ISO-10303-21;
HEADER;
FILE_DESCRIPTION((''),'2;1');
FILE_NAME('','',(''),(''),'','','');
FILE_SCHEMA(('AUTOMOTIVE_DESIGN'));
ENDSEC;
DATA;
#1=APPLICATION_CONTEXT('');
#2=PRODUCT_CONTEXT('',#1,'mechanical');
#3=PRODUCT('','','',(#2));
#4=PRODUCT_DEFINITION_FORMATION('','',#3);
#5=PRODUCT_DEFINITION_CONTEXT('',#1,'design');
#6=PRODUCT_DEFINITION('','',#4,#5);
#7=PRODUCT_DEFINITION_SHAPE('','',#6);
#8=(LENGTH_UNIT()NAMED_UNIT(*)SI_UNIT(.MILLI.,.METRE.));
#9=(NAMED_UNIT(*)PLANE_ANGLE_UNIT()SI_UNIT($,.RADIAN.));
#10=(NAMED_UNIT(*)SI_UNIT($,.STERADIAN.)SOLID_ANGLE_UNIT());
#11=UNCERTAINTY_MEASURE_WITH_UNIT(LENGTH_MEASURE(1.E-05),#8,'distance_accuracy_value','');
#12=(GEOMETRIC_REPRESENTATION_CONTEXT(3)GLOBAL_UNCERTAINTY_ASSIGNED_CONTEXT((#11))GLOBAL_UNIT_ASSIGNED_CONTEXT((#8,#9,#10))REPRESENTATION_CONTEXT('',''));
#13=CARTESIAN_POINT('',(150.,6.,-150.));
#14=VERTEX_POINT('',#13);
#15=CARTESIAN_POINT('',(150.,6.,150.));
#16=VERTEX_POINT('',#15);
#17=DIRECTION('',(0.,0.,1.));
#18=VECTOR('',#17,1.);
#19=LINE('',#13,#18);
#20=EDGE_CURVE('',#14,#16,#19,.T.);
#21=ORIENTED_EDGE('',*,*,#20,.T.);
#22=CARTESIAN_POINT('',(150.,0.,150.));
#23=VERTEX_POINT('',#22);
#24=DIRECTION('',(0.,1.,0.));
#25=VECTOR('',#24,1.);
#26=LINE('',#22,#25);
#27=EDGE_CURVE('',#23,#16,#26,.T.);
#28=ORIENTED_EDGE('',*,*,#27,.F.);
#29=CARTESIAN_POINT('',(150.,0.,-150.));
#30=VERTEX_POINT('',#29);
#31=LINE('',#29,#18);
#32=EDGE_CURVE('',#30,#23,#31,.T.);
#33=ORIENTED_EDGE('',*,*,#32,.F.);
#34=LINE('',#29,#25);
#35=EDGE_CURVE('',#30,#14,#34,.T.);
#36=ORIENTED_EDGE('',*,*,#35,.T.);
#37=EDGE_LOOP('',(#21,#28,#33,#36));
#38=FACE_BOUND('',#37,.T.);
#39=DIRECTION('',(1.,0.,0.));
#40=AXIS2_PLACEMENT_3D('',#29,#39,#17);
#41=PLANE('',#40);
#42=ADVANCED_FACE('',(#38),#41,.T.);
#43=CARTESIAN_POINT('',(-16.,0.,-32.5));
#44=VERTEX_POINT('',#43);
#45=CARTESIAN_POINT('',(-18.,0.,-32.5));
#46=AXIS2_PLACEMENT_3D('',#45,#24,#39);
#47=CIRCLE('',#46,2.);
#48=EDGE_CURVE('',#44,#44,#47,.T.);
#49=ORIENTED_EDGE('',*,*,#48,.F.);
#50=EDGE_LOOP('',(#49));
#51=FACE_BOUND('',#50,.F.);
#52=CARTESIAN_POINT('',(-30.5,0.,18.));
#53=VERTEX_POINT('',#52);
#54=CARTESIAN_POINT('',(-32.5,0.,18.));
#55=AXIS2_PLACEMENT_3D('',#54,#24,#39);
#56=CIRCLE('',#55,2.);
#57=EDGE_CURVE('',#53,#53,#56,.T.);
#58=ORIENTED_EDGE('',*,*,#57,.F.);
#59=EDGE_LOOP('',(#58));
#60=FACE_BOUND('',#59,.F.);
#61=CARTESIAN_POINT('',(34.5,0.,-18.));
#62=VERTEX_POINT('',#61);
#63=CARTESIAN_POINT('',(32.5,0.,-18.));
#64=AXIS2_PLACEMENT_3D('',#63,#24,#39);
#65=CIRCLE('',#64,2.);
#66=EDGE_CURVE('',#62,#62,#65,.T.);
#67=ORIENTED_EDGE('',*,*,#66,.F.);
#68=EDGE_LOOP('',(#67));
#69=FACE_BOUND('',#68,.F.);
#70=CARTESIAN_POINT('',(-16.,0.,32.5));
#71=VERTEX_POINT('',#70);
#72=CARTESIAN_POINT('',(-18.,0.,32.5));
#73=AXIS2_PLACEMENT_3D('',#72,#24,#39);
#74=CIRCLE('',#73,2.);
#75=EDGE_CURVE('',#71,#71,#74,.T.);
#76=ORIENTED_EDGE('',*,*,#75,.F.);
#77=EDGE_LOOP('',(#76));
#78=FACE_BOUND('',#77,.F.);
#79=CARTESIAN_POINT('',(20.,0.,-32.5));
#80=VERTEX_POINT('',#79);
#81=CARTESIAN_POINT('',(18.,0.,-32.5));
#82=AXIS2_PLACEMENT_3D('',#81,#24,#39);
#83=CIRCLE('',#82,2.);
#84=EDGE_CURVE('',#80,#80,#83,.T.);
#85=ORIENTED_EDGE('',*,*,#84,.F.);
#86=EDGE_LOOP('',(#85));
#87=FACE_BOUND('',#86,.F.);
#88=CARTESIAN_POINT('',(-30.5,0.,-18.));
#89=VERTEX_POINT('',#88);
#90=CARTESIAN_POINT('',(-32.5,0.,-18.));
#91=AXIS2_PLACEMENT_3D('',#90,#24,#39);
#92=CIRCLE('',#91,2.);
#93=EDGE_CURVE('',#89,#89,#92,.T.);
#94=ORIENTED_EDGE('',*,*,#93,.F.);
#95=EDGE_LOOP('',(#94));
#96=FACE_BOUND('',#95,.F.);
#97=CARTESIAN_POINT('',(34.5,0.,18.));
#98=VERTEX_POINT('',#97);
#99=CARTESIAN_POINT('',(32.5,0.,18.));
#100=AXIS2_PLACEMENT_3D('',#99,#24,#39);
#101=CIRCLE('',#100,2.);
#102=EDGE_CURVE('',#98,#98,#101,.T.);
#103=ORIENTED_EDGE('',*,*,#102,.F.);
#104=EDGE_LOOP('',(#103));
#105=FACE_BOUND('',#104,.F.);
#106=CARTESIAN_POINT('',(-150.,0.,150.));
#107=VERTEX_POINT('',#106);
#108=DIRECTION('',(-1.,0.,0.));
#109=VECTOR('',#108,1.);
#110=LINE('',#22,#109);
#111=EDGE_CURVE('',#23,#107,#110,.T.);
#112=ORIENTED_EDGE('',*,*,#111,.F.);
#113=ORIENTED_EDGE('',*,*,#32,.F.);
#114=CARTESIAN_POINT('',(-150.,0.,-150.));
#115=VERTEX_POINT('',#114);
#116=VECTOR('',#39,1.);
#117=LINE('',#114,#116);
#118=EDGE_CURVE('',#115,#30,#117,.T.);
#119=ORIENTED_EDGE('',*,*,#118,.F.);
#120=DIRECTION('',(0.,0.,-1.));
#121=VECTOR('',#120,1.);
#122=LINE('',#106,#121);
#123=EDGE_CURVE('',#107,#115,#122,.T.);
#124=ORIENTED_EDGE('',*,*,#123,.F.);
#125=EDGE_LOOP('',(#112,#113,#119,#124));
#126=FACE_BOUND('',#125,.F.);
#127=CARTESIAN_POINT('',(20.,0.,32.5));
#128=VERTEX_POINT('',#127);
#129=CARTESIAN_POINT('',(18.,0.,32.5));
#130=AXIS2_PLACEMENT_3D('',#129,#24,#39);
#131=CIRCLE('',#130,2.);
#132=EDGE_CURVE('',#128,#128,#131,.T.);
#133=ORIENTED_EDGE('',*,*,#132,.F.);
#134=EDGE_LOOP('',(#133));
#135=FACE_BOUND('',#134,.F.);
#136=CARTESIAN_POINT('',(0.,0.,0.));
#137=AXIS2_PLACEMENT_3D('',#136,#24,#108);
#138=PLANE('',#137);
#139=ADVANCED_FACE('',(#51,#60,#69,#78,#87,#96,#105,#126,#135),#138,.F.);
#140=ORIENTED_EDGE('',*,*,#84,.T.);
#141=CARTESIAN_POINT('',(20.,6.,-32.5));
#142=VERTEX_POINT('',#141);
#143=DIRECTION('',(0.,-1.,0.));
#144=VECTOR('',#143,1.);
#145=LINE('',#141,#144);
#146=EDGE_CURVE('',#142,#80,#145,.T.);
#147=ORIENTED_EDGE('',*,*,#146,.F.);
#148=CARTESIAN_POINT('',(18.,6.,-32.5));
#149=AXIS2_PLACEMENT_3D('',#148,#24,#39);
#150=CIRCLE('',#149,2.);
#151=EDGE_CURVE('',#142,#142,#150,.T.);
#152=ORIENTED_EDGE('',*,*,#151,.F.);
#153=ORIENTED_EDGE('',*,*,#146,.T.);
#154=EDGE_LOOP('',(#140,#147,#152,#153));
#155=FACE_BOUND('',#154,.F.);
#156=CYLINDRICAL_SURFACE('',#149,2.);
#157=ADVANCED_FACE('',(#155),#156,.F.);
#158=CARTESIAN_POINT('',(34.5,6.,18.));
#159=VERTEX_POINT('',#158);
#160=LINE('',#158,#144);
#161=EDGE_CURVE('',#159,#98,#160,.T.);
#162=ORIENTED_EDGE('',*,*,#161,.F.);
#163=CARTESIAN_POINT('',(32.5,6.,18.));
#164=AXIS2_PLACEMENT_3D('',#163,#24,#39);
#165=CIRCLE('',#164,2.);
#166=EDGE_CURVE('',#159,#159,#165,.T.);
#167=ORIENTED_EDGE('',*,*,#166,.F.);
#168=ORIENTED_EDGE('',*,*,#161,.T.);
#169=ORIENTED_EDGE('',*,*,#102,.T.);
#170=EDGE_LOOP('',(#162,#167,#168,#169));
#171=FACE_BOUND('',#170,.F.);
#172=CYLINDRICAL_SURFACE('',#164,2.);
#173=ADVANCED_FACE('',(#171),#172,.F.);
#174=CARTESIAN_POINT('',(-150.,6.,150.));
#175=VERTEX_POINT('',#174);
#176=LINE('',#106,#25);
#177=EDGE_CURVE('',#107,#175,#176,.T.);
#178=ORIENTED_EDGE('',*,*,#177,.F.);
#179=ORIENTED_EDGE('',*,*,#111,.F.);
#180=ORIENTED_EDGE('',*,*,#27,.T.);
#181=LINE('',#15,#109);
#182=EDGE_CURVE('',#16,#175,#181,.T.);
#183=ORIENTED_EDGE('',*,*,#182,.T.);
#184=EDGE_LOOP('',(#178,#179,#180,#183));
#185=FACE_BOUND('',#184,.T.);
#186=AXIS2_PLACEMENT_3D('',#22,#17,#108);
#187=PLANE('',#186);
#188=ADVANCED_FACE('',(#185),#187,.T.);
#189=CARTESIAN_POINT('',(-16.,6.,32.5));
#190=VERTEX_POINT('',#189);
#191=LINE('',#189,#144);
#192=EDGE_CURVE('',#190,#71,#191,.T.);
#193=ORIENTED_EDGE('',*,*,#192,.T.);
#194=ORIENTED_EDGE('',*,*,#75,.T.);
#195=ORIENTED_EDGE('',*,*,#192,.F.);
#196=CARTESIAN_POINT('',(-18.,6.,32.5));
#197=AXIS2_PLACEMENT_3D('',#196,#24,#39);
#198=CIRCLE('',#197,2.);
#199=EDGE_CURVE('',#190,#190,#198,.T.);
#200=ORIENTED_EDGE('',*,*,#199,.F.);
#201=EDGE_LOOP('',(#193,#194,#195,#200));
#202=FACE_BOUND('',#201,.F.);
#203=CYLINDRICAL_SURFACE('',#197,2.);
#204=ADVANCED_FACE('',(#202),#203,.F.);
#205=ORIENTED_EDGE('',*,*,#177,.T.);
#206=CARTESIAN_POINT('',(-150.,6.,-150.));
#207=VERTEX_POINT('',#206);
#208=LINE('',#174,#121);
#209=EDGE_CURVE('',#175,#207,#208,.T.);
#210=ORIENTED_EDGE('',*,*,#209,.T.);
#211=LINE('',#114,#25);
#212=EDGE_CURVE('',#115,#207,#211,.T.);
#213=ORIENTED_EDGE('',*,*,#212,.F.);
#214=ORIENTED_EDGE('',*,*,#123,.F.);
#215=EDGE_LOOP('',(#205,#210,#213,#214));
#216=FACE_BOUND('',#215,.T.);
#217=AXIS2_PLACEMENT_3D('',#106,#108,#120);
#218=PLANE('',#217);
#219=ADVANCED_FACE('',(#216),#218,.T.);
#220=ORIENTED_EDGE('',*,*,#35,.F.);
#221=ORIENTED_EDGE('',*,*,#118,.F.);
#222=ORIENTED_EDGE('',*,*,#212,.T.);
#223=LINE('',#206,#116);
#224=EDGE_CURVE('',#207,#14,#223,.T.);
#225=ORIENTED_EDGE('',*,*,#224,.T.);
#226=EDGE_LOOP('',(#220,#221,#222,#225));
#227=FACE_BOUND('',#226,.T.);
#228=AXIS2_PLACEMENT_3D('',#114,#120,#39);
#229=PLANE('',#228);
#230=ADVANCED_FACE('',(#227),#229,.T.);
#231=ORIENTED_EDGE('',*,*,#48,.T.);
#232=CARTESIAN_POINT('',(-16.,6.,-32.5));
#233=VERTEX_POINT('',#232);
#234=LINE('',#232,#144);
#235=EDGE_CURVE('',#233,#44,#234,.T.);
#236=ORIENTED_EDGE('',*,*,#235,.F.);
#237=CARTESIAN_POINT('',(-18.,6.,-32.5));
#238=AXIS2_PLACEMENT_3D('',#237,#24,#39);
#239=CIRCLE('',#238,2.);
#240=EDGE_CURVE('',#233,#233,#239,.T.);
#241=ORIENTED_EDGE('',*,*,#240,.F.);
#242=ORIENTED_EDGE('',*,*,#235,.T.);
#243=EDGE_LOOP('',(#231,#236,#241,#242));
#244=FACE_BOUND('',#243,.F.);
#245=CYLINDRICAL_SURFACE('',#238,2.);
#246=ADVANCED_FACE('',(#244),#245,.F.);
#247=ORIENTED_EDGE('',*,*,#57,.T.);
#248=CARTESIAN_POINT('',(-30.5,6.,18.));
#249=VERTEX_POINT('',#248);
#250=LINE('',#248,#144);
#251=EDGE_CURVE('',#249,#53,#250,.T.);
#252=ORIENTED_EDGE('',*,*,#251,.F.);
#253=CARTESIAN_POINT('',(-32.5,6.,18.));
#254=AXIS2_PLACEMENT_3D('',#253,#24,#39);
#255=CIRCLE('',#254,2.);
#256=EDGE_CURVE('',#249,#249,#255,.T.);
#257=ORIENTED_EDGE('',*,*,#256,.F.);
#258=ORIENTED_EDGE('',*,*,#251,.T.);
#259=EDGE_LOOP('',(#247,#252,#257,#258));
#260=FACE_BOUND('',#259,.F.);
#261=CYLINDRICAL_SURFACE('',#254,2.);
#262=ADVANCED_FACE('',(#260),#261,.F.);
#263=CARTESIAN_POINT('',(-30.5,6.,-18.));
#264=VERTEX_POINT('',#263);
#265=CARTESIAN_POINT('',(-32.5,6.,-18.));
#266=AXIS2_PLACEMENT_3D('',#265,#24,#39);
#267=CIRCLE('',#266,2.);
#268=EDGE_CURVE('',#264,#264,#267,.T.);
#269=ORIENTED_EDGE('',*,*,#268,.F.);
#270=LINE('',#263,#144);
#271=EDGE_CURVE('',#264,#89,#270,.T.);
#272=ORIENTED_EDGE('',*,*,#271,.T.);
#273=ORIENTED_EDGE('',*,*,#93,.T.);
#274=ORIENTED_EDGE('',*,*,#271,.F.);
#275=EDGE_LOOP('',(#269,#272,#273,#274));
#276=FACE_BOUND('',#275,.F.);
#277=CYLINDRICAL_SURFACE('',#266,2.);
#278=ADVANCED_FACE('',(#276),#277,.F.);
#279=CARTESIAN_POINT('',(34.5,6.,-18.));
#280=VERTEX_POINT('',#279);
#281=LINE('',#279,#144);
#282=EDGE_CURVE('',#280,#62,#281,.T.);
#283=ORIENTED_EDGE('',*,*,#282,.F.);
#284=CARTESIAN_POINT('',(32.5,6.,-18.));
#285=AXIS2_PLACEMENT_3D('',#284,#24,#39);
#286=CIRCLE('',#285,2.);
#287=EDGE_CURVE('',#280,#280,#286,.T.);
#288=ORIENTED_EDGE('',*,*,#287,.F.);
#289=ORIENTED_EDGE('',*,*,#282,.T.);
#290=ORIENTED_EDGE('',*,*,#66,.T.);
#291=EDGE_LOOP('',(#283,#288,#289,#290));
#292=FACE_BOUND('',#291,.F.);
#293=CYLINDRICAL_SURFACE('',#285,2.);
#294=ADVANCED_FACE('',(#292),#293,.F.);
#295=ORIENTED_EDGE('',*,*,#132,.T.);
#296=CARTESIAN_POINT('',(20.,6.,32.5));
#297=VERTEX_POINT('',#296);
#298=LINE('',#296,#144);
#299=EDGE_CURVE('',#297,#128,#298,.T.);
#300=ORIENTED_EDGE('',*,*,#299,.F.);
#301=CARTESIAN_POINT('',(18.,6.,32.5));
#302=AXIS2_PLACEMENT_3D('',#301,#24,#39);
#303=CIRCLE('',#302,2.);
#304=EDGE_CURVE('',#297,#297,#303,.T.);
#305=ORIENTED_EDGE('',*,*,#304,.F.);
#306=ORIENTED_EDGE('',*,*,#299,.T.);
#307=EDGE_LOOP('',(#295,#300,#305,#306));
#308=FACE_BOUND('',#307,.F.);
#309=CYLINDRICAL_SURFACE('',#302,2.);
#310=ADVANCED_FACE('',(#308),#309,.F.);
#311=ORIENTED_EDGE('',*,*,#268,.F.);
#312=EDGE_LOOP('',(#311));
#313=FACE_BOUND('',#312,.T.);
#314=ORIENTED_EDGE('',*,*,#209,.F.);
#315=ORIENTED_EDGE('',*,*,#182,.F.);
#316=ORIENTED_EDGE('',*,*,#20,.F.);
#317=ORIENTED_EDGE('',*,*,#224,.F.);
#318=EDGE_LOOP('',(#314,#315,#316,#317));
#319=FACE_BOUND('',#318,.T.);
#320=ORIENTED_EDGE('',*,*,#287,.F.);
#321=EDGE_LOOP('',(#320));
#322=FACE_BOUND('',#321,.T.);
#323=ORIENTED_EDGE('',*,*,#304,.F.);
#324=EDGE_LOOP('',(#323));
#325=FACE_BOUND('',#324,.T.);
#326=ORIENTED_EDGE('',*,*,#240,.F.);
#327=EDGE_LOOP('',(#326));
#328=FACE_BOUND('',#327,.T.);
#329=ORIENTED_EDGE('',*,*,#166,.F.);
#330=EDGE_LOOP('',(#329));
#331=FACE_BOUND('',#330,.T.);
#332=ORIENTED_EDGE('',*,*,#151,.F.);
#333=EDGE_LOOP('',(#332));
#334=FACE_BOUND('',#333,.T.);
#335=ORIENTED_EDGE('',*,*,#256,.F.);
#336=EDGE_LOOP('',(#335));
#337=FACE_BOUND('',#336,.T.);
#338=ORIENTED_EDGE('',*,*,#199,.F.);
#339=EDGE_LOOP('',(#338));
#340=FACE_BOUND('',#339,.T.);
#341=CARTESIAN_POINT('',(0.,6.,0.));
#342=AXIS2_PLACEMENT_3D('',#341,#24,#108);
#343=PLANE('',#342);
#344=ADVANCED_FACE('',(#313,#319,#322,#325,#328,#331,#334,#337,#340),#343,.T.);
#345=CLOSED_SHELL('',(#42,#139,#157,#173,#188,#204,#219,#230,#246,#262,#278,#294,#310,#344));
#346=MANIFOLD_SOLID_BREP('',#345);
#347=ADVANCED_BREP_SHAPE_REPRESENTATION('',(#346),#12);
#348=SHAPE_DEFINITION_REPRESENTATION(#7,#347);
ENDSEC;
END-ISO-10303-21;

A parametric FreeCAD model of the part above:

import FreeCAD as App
import Part
import Sketcher
from FreeCAD import Vector
Q = App.Units.Quantity


def add_polygon(sketch, points):
    """Adds a closed chain of lines whose ends are joined by coincident constraints."""
    first, n = sketch.GeometryCount, len(points)
    for a, b in zip(points, points[1:] + points[:1]):
        sketch.addGeometry(Part.LineSegment(App.Vector(*a, 0), App.Vector(*b, 0)), False)
    for i in range(n):
        sketch.addConstraint(Sketcher.Constraint("Coincident", first + i, 2, first + (i + 1) % n, 1))

doc = App.newDocument("Part")
body = doc.addObject("PartDesign::Body", "Body")

sketch1 = doc.addObject("Sketcher::SketchObject", "Sketch")
body.addObject(sketch1)
sketch1.AttachmentSupport = (doc.XZ_Plane, [""])
sketch1.MapMode = "FlatFace"
add_polygon(sketch1, [(-150, 150), (150, 150), (150, -150), (-150, -150)])
sketch1.addConstraint(Sketcher.Constraint("Horizontal", 0))
sketch1.addConstraint(Sketcher.Constraint("Vertical", 1))
sketch1.addConstraint(Sketcher.Constraint("Horizontal", 2))
sketch1.addConstraint(Sketcher.Constraint("Vertical", 3))
sketch1.addConstraint(Sketcher.Constraint("Symmetric", 0, 2, 2, 2, -1, 1))
sketch1.addConstraint(Sketcher.Constraint("Equal", 2, 1))
sketch1.addConstraint(Sketcher.Constraint("DistanceX", 0, 1, 0, 2, Q("300 mm")))
pad1 = doc.addObject("PartDesign::Pad", "Pad")
body.addObject(pad1)
pad1.Profile = sketch1
pad1.Length = 6
pad1.Reversed = True

sketch2 = doc.addObject("Sketcher::SketchObject", "Sketch001")
body.addObject(sketch2)
sketch2.AttachmentSupport = (doc.XZ_Plane, [""])
sketch2.MapMode = "FlatFace"
sketch2.AttachmentOffset = App.Placement(Vector(0, 0, -6), App.Rotation())
sketch2.addGeometry(Part.Circle(Vector(-32.5, 18, 0), Vector(0, 0, 1), 2), False)
sketch2.addGeometry(Part.Circle(Vector(-18, 32.5, 0), Vector(0, 0, 1), 2), False)
sketch2.addGeometry(Part.Circle(Vector(-18, -32.5, 0), Vector(0, 0, 1), 2), False)
sketch2.addGeometry(Part.Circle(Vector(-32.5, -18, 0), Vector(0, 0, 1), 2), False)
sketch2.addGeometry(Part.Circle(Vector(18, 32.5, 0), Vector(0, 0, 1), 2), False)
sketch2.addGeometry(Part.Circle(Vector(32.5, 18, 0), Vector(0, 0, 1), 2), False)
sketch2.addGeometry(Part.Circle(Vector(18, -32.5, 0), Vector(0, 0, 1), 2), False)
sketch2.addGeometry(Part.Circle(Vector(32.5, -18, 0), Vector(0, 0, 1), 2), False)
sketch2.addConstraint(Sketcher.Constraint("Equal", 0, 1))
sketch2.addConstraint(Sketcher.Constraint("Equal", 1, 2))
sketch2.addConstraint(Sketcher.Constraint("Equal", 2, 3))
sketch2.addConstraint(Sketcher.Constraint("Equal", 3, 4))
sketch2.addConstraint(Sketcher.Constraint("Equal", 4, 5))
sketch2.addConstraint(Sketcher.Constraint("Equal", 5, 6))
sketch2.addConstraint(Sketcher.Constraint("Equal", 6, 7))
sketch2.addConstraint(Sketcher.Constraint("Symmetric", 2, 3, 4, 3, -1, 1))
sketch2.addConstraint(Sketcher.Constraint("Symmetric", 3, 3, 5, 3, -1, 1))
sketch2.addConstraint(Sketcher.Constraint("Symmetric", 1, 3, 6, 3, -1, 1))
sketch2.addConstraint(Sketcher.Constraint("Symmetric", 0, 3, 7, 3, -1, 1))
sketch2.addConstraint(Sketcher.Constraint("Symmetric", 1, 3, 4, 3, -2))
sketch2.addConstraint(Sketcher.Constraint("Symmetric", 0, 3, 5, 3, -2))
sketch2.addConstraint(Sketcher.Constraint("Diameter", 0, Q("4 mm")))
sketch2.addConstraint(Sketcher.Constraint("DistanceY", -1, 1, 0, 3, Q("18 mm")))
sketch2.addConstraint(Sketcher.Constraint("DistanceX", 1, 3, -1, 1, Q("18 mm")))
sketch2.addConstraint(Sketcher.Constraint("DistanceY", 2, 3, 1, 3, Q("65 mm")))
sketch2.addConstraint(Sketcher.Constraint("DistanceX", 0, 3, 5, 3, Q("65 mm")))
pocket1 = doc.addObject("PartDesign::Pocket", "Pocket")
body.addObject(pocket1)
pocket1.Profile = sketch2
pocket1.Length = 10
pocket1.Reversed = True

doc.recompute()
